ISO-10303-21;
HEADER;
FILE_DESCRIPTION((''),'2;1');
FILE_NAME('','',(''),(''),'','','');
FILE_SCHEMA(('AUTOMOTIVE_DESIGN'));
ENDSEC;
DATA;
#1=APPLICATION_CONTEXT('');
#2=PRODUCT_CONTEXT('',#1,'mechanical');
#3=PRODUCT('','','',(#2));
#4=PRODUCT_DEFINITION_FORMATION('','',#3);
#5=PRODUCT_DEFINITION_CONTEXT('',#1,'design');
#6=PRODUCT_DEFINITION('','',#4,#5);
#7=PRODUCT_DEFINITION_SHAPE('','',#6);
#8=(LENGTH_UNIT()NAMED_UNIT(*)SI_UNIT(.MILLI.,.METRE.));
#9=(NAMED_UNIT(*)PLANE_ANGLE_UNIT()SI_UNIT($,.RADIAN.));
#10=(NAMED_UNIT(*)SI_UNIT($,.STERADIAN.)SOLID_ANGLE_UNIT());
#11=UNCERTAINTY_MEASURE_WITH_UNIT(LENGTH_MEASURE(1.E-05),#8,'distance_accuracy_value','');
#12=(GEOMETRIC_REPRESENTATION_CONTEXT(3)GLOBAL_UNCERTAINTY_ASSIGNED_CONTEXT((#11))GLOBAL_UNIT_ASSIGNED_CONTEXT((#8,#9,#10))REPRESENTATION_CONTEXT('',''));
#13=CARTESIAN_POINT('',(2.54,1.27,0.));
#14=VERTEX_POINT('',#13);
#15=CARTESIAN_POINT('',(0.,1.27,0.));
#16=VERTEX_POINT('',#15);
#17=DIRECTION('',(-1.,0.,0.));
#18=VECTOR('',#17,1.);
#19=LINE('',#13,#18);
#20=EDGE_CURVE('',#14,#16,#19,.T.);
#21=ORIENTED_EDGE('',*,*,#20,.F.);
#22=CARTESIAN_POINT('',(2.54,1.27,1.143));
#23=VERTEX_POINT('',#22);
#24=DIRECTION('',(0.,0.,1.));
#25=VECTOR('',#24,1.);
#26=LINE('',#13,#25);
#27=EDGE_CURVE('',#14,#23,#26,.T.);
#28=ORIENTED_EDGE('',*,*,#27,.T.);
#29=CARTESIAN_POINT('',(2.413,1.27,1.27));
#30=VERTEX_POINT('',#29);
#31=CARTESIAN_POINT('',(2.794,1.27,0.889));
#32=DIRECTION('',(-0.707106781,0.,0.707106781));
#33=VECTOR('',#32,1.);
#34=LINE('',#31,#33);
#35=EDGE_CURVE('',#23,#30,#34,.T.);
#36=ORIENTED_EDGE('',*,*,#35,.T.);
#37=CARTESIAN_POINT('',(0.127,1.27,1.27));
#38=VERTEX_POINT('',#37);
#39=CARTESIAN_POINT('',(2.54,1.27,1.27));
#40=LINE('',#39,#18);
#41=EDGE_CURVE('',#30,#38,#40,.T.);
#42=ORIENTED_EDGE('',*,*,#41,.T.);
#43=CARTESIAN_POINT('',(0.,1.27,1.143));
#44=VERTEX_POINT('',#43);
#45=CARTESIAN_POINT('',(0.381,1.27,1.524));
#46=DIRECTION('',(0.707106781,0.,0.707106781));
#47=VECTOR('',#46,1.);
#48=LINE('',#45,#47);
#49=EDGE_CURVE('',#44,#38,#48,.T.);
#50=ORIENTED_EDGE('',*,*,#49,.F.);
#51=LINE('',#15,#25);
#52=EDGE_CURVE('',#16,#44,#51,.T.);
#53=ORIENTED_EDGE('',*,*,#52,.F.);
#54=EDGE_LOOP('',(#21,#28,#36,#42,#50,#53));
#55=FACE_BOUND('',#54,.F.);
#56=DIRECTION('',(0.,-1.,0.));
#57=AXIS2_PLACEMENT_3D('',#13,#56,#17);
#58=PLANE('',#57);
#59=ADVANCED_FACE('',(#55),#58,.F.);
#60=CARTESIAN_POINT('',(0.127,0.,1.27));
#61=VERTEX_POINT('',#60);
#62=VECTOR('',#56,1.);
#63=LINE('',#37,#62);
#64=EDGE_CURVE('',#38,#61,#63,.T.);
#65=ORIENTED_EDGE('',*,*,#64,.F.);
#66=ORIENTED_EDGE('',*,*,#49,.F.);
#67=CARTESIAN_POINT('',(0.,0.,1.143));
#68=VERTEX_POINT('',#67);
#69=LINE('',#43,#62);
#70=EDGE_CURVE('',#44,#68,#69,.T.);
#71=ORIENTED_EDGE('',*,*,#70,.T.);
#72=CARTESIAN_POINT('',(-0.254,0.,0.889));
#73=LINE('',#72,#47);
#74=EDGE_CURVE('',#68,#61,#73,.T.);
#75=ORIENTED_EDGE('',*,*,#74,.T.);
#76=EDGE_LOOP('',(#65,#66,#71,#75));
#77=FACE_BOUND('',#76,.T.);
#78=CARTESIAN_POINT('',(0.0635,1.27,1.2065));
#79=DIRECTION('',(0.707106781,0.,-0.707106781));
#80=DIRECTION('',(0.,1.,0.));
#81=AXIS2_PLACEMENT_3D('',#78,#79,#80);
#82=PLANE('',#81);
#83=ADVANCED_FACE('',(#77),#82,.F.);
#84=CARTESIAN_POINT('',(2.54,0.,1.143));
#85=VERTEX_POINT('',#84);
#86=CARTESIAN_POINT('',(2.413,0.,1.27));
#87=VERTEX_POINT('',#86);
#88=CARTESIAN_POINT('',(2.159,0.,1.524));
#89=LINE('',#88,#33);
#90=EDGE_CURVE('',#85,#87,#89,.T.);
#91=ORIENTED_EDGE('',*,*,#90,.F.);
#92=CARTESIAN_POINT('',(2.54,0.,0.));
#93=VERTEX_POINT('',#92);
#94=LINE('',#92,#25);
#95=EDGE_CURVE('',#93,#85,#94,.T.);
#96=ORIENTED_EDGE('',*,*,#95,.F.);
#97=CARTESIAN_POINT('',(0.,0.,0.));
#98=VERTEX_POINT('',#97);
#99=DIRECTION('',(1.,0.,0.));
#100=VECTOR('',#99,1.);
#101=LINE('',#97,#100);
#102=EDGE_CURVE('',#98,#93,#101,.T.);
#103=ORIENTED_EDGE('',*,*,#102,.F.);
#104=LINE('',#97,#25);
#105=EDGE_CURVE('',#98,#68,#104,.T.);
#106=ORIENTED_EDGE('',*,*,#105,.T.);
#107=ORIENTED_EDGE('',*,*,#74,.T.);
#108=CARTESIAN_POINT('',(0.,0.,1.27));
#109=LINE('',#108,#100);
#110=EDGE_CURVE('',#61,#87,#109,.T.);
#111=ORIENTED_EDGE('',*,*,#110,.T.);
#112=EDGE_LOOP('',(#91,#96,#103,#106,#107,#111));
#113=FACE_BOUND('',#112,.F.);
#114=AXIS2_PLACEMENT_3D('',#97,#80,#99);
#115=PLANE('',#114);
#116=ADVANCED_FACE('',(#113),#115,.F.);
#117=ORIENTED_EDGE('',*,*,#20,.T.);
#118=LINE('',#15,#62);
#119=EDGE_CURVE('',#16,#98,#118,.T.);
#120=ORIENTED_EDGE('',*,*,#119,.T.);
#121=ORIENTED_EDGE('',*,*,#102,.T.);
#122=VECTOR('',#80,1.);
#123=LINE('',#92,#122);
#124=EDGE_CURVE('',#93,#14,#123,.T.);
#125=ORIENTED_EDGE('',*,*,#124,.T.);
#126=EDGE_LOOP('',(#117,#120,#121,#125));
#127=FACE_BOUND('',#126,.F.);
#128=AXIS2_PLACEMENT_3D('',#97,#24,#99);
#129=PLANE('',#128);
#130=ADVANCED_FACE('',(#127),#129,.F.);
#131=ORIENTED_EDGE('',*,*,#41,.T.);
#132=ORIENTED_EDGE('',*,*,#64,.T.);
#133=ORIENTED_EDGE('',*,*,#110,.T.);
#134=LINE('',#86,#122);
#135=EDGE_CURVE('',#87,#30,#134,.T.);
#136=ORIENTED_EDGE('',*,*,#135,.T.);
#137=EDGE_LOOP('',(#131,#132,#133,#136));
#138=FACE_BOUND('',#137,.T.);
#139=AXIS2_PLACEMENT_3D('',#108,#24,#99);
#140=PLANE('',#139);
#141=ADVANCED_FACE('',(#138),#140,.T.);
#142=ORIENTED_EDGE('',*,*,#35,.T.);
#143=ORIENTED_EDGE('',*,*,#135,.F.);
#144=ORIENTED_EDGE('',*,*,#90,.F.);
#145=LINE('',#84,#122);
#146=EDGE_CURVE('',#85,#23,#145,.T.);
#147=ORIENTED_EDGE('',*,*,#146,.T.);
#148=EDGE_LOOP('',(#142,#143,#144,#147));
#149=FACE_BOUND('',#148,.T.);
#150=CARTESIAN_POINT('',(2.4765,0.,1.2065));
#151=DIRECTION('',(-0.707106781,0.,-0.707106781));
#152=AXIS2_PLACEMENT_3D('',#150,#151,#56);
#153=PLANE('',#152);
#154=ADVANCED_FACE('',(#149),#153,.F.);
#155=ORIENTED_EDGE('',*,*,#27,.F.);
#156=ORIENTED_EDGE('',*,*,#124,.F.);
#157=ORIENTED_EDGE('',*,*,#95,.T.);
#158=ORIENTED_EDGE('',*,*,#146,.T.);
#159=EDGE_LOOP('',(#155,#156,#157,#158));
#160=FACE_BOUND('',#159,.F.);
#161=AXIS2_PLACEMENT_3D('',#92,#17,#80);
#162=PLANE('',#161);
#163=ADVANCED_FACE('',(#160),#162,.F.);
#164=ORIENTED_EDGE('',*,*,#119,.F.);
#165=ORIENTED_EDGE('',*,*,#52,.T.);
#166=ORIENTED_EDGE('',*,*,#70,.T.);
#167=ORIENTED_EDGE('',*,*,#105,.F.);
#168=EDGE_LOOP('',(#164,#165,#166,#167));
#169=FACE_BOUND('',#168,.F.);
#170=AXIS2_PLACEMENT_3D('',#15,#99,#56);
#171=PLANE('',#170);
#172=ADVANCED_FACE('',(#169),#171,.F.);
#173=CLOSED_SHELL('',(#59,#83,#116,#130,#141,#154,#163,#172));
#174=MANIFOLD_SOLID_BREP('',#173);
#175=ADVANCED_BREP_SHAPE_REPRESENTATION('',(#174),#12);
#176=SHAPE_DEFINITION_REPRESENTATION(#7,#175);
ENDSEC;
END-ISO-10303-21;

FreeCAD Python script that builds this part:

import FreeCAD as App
import Part
import Sketcher
from FreeCAD import Vector
Q = App.Units.Quantity


def edges_at(feature, points):
    """Names of the edges that pass closest to the given points."""
    edges = feature.Shape.Edges
    near = lambda p: min(range(len(edges)), key=lambda i: edges[i].distToShape(Part.Vertex(*p))[0])
    return sorted({f"Edge{near(p) + 1}" for p in points})

doc = App.newDocument("Part")
body = doc.addObject("PartDesign::Body", "Body")

# Sketch on XY plane
sketch1 = body.newObject("Sketcher::SketchObject", "Sketch")
sketch1.AttachmentSupport = (doc.getObject("XY_Plane"), [""])
sketch1.MapMode = "FlatFace"
sketch1.addGeometry([
    Part.LineSegment(Vector(0, 1.27, 0), Vector(0, 0, 0)),
    Part.LineSegment(Vector(0, 0, 0), Vector(2.54, 0, 0)),
    Part.LineSegment(Vector(2.54, 0, 0), Vector(2.54, 1.27, 0)),
    Part.LineSegment(Vector(2.54, 1.27, 0), Vector(0, 1.27, 0)),
], False)
sketch1.addConstraint([
    Sketcher.Constraint("Coincident", 0, 2, 1, 1),
    Sketcher.Constraint("Coincident", 1, 2, 2, 1),
    Sketcher.Constraint("Coincident", 2, 2, 3, 1),
    Sketcher.Constraint("Coincident", 3, 2, 0, 1),
    Sketcher.Constraint("Vertical", 0),
    Sketcher.Constraint("Horizontal", 1),
    Sketcher.Constraint("Vertical", 2),
    Sketcher.Constraint("Horizontal", 3),
    Sketcher.Constraint("Coincident", 0, 2, -1, 1),
    Sketcher.Constraint("DistanceX", 1, 1, 1, 2, Q("0.1 in")),
    Sketcher.Constraint("DistanceY", 0, 2, 0, 1, Q("0.05 in")),
])
pad1 = body.newObject("PartDesign::Pad", "Pad")
pad1.Profile = sketch1
pad1.Length = Q("0.05 in")
doc.recompute()

chamfer = body.newObject("PartDesign::Chamfer", "Chamfer")
chamfer.Base = (pad1, edges_at(pad1, [(0, 0.635, 1.27), (2.54, 0.635, 1.27)]))
chamfer.Size = Q("0.005 in")

doc.recompute()
